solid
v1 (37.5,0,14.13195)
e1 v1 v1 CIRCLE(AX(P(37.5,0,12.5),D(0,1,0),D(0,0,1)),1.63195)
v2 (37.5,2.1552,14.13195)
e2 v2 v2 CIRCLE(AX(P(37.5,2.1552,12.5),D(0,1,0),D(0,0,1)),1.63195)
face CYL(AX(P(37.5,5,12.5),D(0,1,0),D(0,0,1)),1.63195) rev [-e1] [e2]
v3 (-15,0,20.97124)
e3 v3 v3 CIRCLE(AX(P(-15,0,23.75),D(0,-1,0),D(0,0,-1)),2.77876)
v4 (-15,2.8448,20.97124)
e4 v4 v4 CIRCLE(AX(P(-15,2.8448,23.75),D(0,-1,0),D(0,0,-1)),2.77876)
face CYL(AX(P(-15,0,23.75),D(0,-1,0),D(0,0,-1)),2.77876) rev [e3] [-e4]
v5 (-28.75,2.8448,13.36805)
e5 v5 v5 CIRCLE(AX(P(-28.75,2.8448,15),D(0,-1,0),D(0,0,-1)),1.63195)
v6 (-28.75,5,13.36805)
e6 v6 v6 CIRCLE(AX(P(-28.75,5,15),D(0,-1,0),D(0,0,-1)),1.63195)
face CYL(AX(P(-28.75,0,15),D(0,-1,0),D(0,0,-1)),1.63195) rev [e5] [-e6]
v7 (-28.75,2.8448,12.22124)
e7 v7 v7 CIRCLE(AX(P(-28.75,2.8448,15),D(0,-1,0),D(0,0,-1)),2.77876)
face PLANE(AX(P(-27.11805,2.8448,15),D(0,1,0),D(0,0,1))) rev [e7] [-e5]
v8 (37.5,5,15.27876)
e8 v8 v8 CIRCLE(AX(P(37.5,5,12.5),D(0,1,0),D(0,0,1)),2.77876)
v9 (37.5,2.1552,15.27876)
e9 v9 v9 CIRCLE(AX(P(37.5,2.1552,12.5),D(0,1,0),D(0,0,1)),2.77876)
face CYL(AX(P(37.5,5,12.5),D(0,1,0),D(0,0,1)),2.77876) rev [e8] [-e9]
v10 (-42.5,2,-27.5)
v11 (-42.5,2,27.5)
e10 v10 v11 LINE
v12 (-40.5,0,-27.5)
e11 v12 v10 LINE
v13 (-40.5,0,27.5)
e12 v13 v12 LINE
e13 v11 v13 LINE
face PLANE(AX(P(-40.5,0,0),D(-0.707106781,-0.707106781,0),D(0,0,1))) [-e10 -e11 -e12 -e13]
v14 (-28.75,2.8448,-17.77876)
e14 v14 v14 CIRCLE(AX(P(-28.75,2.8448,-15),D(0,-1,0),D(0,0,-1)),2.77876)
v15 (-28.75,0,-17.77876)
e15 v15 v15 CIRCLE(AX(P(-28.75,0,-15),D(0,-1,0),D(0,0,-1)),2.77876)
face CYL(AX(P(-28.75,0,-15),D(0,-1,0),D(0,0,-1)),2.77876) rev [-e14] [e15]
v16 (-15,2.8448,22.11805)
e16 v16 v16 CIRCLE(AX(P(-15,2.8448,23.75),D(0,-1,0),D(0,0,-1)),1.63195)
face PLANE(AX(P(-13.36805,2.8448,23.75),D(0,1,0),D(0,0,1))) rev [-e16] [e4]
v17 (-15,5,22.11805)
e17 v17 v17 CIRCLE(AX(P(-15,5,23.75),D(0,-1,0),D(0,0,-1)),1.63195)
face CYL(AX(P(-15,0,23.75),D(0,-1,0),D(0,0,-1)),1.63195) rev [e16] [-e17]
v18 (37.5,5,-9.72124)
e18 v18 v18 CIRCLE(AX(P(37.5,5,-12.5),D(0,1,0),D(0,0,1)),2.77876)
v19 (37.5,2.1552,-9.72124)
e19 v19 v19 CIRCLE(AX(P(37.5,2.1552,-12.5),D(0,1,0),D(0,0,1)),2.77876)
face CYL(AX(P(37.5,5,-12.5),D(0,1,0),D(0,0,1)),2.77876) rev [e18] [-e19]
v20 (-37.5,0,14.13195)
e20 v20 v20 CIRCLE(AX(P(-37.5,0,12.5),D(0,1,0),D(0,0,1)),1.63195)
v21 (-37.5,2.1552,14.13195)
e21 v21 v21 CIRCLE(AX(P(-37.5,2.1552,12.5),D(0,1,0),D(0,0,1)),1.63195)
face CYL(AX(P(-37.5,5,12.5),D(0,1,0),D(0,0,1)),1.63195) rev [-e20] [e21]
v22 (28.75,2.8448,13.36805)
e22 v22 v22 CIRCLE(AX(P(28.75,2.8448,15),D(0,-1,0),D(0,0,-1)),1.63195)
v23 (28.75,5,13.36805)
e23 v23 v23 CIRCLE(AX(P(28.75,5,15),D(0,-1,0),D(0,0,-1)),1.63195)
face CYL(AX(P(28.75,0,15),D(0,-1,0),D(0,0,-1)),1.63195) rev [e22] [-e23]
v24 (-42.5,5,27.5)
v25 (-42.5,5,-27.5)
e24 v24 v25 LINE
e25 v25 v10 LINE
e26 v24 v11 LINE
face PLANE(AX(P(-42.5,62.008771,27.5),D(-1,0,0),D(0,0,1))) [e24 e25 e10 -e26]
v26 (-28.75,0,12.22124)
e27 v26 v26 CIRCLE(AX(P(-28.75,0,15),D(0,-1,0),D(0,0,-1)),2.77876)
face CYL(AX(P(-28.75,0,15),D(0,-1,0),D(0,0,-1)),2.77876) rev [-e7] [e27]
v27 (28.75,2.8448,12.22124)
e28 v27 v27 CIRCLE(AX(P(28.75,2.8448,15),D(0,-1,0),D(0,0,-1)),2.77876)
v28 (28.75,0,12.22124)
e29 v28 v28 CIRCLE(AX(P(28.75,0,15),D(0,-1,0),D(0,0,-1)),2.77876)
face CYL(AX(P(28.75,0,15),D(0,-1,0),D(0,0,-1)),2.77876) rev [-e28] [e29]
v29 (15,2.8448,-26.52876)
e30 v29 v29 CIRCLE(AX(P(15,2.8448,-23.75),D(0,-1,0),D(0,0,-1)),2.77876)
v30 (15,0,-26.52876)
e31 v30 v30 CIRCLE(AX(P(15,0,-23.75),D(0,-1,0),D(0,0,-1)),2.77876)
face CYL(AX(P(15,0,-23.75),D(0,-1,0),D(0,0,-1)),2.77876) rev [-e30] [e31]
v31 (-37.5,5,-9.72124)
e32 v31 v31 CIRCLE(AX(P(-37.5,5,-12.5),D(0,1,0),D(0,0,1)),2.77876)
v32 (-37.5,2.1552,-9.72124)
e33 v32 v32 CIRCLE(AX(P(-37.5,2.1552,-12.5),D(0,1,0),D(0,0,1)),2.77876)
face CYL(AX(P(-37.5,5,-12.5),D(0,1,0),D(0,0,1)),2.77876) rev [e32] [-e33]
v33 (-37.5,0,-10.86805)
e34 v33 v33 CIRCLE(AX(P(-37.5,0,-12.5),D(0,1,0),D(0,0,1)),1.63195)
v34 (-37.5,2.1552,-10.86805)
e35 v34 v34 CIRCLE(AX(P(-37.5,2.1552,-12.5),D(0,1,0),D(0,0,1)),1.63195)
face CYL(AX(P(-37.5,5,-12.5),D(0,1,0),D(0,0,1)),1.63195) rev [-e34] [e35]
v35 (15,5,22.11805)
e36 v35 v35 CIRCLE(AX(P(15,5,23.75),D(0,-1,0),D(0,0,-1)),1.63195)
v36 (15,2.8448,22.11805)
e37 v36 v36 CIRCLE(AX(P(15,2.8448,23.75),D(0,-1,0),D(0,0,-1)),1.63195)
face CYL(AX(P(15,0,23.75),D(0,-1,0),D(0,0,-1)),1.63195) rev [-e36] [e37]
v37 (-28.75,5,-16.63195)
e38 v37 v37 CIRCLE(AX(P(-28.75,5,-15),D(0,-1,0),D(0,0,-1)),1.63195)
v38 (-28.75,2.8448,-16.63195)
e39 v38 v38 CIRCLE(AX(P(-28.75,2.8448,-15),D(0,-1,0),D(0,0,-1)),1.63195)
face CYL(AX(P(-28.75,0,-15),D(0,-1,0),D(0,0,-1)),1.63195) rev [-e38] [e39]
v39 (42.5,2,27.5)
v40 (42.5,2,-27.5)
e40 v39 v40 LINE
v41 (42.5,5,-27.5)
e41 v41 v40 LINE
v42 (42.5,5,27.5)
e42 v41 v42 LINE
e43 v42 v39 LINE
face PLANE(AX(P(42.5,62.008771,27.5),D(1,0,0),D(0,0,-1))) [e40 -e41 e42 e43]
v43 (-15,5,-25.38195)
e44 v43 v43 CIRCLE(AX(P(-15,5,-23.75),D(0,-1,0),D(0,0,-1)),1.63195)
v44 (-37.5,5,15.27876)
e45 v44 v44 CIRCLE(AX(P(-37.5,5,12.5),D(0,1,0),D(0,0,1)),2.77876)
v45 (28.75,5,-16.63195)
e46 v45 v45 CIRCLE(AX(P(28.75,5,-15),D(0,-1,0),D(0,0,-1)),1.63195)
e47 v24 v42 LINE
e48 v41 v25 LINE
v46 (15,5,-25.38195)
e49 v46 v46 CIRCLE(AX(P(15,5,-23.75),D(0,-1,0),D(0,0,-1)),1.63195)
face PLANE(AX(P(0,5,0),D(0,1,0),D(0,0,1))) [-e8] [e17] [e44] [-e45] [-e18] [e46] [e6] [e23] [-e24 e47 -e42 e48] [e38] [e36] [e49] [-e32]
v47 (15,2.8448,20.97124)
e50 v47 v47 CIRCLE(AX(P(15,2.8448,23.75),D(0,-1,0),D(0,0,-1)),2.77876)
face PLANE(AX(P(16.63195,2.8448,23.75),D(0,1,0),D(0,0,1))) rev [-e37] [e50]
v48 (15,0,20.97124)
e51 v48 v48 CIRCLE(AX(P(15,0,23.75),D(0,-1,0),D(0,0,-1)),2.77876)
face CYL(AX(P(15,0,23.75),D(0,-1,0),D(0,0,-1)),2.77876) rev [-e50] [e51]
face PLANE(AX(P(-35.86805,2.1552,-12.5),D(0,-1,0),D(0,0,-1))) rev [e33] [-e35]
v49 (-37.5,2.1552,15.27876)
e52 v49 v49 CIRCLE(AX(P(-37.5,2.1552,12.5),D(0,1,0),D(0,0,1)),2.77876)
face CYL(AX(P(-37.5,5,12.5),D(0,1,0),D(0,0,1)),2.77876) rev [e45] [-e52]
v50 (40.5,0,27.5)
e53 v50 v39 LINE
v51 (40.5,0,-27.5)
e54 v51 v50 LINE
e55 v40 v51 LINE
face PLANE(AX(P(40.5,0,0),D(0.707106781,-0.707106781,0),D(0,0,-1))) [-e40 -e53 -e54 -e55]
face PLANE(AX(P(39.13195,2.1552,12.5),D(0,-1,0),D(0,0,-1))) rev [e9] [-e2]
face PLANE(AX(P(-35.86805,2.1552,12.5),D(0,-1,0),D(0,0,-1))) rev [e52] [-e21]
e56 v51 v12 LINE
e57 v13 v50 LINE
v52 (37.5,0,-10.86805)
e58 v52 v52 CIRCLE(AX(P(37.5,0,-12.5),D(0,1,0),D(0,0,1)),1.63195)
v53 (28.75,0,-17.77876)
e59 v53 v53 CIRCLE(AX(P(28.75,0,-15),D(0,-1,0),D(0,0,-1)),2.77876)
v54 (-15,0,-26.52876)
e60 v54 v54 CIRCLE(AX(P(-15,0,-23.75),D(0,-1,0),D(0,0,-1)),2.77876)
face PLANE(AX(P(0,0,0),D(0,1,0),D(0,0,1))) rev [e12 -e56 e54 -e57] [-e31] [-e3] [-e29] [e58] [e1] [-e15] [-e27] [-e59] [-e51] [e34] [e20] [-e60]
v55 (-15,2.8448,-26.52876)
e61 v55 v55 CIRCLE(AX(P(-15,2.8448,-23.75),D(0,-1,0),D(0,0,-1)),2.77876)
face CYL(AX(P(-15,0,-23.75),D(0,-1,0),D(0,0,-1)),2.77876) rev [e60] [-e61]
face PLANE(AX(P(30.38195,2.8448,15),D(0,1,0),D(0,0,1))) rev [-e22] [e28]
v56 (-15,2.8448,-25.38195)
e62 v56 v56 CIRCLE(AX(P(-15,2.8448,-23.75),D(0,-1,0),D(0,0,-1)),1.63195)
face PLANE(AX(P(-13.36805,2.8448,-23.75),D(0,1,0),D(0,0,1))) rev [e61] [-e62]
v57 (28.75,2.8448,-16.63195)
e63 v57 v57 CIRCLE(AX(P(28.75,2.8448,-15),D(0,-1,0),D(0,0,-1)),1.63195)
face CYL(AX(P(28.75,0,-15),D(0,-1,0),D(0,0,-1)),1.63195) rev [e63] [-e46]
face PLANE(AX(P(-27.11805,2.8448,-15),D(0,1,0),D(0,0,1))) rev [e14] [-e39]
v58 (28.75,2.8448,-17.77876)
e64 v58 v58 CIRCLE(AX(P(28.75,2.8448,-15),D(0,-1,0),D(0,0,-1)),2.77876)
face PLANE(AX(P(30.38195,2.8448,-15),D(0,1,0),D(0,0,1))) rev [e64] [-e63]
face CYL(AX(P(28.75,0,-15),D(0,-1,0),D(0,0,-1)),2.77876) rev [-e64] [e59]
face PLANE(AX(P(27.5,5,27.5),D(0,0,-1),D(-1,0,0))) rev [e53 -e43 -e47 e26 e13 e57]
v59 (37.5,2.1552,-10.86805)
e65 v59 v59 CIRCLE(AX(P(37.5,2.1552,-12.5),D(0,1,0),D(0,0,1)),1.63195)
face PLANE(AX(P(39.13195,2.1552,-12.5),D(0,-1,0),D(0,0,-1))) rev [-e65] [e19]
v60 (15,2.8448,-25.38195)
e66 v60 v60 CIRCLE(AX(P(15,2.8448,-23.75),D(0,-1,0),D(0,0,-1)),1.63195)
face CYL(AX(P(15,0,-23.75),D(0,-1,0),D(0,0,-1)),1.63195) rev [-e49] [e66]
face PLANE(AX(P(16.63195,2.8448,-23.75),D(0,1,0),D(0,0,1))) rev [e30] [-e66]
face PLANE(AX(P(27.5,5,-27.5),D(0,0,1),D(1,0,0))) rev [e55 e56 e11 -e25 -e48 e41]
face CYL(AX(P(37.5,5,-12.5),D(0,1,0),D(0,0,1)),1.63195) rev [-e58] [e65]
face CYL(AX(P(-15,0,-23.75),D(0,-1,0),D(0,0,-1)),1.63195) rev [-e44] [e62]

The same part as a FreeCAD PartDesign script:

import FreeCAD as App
import Part
import Sketcher

V = App.Vector
Q = App.Units.Quantity


def edges_at(feature, points):
    """Names of the edges that pass closest to the given points."""
    edges = feature.Shape.Edges
    near = lambda p: min(range(len(edges)), key=lambda i: edges[i].distToShape(Part.Vertex(*p))[0])
    return sorted({f"Edge{near(p) + 1}" for p in points})

doc = App.newDocument("Part")
body = doc.addObject("PartDesign::Body", "Body")

sketch1 = body.newObject("Sketcher::SketchObject", "Sketch")
sketch1.AttachmentSupport = (doc.getObject("XZ_Plane"), [""])
sketch1.MapMode = "FlatFace"
sketch1.addGeometry(Part.LineSegment(V(-28, -28, 0), V(-28, 28, 0)), False)
sketch1.addGeometry(Part.LineSegment(V(-28, 28, 0), V(28, 28, 0)), False)
sketch1.addGeometry(Part.LineSegment(V(28, 28, 0), V(28, -28, 0)), False)
sketch1.addGeometry(Part.LineSegment(V(28, -28, 0), V(-28, -28, 0)), False)
sketch1.addConstraint(Sketcher.Constraint("Coincident", 0, 2, 1, 1))
sketch1.addConstraint(Sketcher.Constraint("Coincident", 1, 2, 2, 1))
sketch1.addConstraint(Sketcher.Constraint("Coincident", 2, 2, 3, 1))
sketch1.addConstraint(Sketcher.Constraint("Coincident", 3, 2, 0, 1))
sketch1.addConstraint(Sketcher.Constraint("Vertical", 0))
sketch1.addConstraint(Sketcher.Constraint("Horizontal", 1))
sketch1.addConstraint(Sketcher.Constraint("Vertical", 2))
sketch1.addConstraint(Sketcher.Constraint("Horizontal", 3))
sketch1.addConstraint(Sketcher.Constraint("Symmetric", 0, 2, 2, 2, -1, 1))
sketch1.addConstraint(Sketcher.Constraint("Equal", 3, 0))
sketch1.addConstraint(Sketcher.Constraint("DistanceX", 1, 1, 1, 2, Q("55 mm")))
pad1 = body.newObject("PartDesign::Pad", "Pad")
pad1.Profile = sketch1
pad1.Length = 5
pad1.Reversed = True

sketch2 = body.newObject("Sketcher::SketchObject", "Sketch001")
sketch2.AttachmentSupport = (doc.getObject("XZ_Plane"), [""])
sketch2.MapMode = "FlatFace"
sketch2.addGeometry(Part.LineSegment(V(-42, 28, 0), V(-42, -28, 0)), False)
sketch2.addGeometry(Part.LineSegment(V(-42, -28, 0), V(-28, -28, 0)), False)
sketch2.addGeometry(Part.LineSegment(V(-28, -28, 0), V(-28, 28, 0)), False)
sketch2.addGeometry(Part.LineSegment(V(-28, 28, 0), V(-42, 28, 0)), False)
sketch2.addGeometry(Part.LineSegment(V(28, 28, 0), V(28, -28, 0)), False)
sketch2.addGeometry(Part.LineSegment(V(28, -28, 0), V(42, -28, 0)), False)
sketch2.addGeometry(Part.LineSegment(V(42, -28, 0), V(42, 28, 0)), False)
sketch2.addGeometry(Part.LineSegment(V(42, 28, 0), V(28, 28, 0)), False)
sketch2.addConstraint(Sketcher.Constraint("Coincident", 0, 2, 1, 1))
sketch2.addConstraint(Sketcher.Constraint("Coincident", 1, 2, 2, 1))
sketch2.addConstraint(Sketcher.Constraint("Coincident", 2, 2, 3, 1))
sketch2.addConstraint(Sketcher.Constraint("Coincident", 3, 2, 0, 1))
sketch2.addConstraint(Sketcher.Constraint("Coincident", 4, 2, 5, 1))
sketch2.addConstraint(Sketcher.Constraint("Coincident", 5, 2, 6, 1))
sketch2.addConstraint(Sketcher.Constraint("Coincident", 6, 2, 7, 1))
sketch2.addConstraint(Sketcher.Constraint("Coincident", 7, 2, 4, 1))
sketch2.addConstraint(Sketcher.Constraint("Vertical", 0))
sketch2.addConstraint(Sketcher.Constraint("Horizontal", 1))
sketch2.addConstraint(Sketcher.Constraint("Vertical", 2))
sketch2.addConstraint(Sketcher.Constraint("Horizontal", 3))
sketch2.addConstraint(Sketcher.Constraint("Vertical", 4))
sketch2.addConstraint(Sketcher.Constraint("Horizontal", 5))
sketch2.addConstraint(Sketcher.Constraint("Vertical", 6))
sketch2.addConstraint(Sketcher.Constraint("Horizontal", 7))
sketch2.addConstraint(Sketcher.Constraint("Symmetric", 2, 2, 4, 2, -1, 1))
sketch2.addConstraint(Sketcher.Constraint("Symmetric", 0, 2, 6, 2, -1, 1))
sketch2.addConstraint(Sketcher.Constraint("Horizontal", 1, 2, 4, 2))
sketch2.addConstraint(Sketcher.Constraint("DistanceX", 1, 1, 1, 2, Q("15 mm")))
sketch2.addConstraint(Sketcher.Constraint("DistanceY", 0, 2, 0, 1, Q("55 mm")))
sketch2.addConstraint(Sketcher.Constraint("DistanceX", 1, 2, 4, 2, Q("55 mm")))
pad2 = body.newObject("PartDesign::Pad", "Pad001")
pad2.Profile = sketch2
pad2.Length = 5
pad2.Reversed = True

sketch3 = body.newObject("Sketcher::SketchObject", "Sketch002")
sketch3.AttachmentSupport = (doc.getObject("XZ_Plane"), [""])
sketch3.MapMode = "FlatFace"
sketch3.AttachmentOffset = App.Placement(V(0, 0, -5), App.Rotation())
sketch3.addGeometry(Part.Circle(V(-37.5, -12.5, 0), V(0, 0, 1), 1.6), False)
sketch3.addGeometry(Part.Circle(V(-37.5, 12.5, 0), V(0, 0, 1), 1.6), False)
sketch3.addGeometry(Part.Circle(V(37.5, 12.5, 0), V(0, 0, 1), 1.6), False)
sketch3.addGeometry(Part.Circle(V(37.5, -12.5, 0), V(0, 0, 1), 1.6), False)
sketch3.addConstraint(Sketcher.Constraint("Equal", 0, 1))
sketch3.addConstraint(Sketcher.Constraint("Equal", 1, 2))
sketch3.addConstraint(Sketcher.Constraint("Equal", 2, 3))
sketch3.addConstraint(Sketcher.Constraint("Symmetric", 0, 3, 2, 3, -1, 1))
sketch3.addConstraint(Sketcher.Constraint("Symmetric", 1, 3, 3, 3, -1, 1))
sketch3.addConstraint(Sketcher.Constraint("Symmetric", 1, 3, 2, 3, -2))
sketch3.addConstraint(Sketcher.Constraint("DistanceY", 0, 3, 1, 3, Q("25 mm")))
sketch3.addConstraint(Sketcher.Constraint("DistanceX", 1, 3, 2, 3, Q("75 mm")))
sketch3.addConstraint(Sketcher.Constraint("Diameter", 0, Q("3.2639 mm")))
doc.recompute()
hole = body.newObject("PartDesign::Hole", "Hole")
hole.Profile = sketch3
hole.ThreadType = "None"
hole.Diameter = 3.2639
hole.DepthType = "ThroughAll"
hole.HoleCutType = "Counterbore"
hole.HoleCutDiameter = 5.55752
hole.HoleCutDepth = 2.8448
hole.Reversed = True

sketch4 = body.newObject("Sketcher::SketchObject", "Sketch003")
sketch4.AttachmentSupport = (doc.getObject("XZ_Plane"), [""])
sketch4.MapMode = "FlatFace"
sketch4.addGeometry(Part.Circle(V(28.8, -15, 0), V(0, 0, 1), 1.6), False)
sketch4.addGeometry(Part.Circle(V(15, -23.8, 0), V(0, 0, 1), 1.6), False)
sketch4.addGeometry(Part.Circle(V(28.8, 15, 0), V(0, 0, 1), 1.6), False)
sketch4.addGeometry(Part.Circle(V(15, 23.8, 0), V(0, 0, 1), 1.6), False)
sketch4.addGeometry(Part.Circle(V(-15, 23.8, 0), V(0, 0, 1), 1.6), False)
sketch4.addGeometry(Part.Circle(V(-28.8, 15, 0), V(0, 0, 1), 1.6), False)
sketch4.addGeometry(Part.Circle(V(-28.8, -15, 0), V(0, 0, 1), 1.6), False)
sketch4.addGeometry(Part.Circle(V(-15, -23.8, 0), V(0, 0, 1), 1.6), False)
sketch4.addConstraint(Sketcher.Constraint("Equal", 0, 1))
sketch4.addConstraint(Sketcher.Constraint("Equal", 1, 2))
sketch4.addConstraint(Sketcher.Constraint("Equal", 2, 3))
sketch4.addConstraint(Sketcher.Constraint("Equal", 3, 4))
sketch4.addConstraint(Sketcher.Constraint("Equal", 4, 5))
sketch4.addConstraint(Sketcher.Constraint("Equal", 5, 6))
sketch4.addConstraint(Sketcher.Constraint("Equal", 6, 7))
sketch4.addConstraint(Sketcher.Constraint("Symmetric", 1, 3, 4, 3, -1, 1))
sketch4.addConstraint(Sketcher.Constraint("Symmetric", 0, 3, 5, 3, -1, 1))
sketch4.addConstraint(Sketcher.Constraint("Symmetric", 2, 3, 6, 3, -1, 1))
sketch4.addConstraint(Sketcher.Constraint("Symmetric", 3, 3, 7, 3, -1, 1))
sketch4.addConstraint(Sketcher.Constraint("Symmetric", 3, 3, 4, 3, -2))
sketch4.addConstraint(Sketcher.Constraint("Symmetric", 2, 3, 5, 3, -2))
sketch4.addConstraint(Sketcher.Constraint("DistanceY", 0, 3, -1, 1, Q("15 mm")))
sketch4.addConstraint(Sketcher.Constraint("DistanceX", -1, 1, 1, 3, Q("15 mm")))
sketch4.addConstraint(Sketcher.Constraint("Diameter", 0, Q("3.2639 mm")))
sketch4.addConstraint(Sketcher.Constraint("DistanceY", 1, 3, 3, 3, Q("47.5 mm")))
sketch4.addConstraint(Sketcher.Constraint("DistanceX", 5, 3, 2, 3, Q("57.5 mm")))
doc.recompute()
hole2 = body.newObject("PartDesign::Hole", "Hole001")
hole2.Profile = sketch4
hole2.ThreadType = "None"
hole2.Diameter = 3.2639
hole2.DepthType = "ThroughAll"
hole2.HoleCutType = "Counterbore"
hole2.HoleCutDiameter = 5.55752
hole2.HoleCutDepth = 2.8448
doc.recompute()

chamfer = body.newObject("PartDesign::Chamfer", "Chamfer")
chamfer.Base = (hole2, edges_at(hole2, [(-42.5, 0, 0), (42.5, 0, 0)]))
chamfer.Size = 2

doc.recompute()
